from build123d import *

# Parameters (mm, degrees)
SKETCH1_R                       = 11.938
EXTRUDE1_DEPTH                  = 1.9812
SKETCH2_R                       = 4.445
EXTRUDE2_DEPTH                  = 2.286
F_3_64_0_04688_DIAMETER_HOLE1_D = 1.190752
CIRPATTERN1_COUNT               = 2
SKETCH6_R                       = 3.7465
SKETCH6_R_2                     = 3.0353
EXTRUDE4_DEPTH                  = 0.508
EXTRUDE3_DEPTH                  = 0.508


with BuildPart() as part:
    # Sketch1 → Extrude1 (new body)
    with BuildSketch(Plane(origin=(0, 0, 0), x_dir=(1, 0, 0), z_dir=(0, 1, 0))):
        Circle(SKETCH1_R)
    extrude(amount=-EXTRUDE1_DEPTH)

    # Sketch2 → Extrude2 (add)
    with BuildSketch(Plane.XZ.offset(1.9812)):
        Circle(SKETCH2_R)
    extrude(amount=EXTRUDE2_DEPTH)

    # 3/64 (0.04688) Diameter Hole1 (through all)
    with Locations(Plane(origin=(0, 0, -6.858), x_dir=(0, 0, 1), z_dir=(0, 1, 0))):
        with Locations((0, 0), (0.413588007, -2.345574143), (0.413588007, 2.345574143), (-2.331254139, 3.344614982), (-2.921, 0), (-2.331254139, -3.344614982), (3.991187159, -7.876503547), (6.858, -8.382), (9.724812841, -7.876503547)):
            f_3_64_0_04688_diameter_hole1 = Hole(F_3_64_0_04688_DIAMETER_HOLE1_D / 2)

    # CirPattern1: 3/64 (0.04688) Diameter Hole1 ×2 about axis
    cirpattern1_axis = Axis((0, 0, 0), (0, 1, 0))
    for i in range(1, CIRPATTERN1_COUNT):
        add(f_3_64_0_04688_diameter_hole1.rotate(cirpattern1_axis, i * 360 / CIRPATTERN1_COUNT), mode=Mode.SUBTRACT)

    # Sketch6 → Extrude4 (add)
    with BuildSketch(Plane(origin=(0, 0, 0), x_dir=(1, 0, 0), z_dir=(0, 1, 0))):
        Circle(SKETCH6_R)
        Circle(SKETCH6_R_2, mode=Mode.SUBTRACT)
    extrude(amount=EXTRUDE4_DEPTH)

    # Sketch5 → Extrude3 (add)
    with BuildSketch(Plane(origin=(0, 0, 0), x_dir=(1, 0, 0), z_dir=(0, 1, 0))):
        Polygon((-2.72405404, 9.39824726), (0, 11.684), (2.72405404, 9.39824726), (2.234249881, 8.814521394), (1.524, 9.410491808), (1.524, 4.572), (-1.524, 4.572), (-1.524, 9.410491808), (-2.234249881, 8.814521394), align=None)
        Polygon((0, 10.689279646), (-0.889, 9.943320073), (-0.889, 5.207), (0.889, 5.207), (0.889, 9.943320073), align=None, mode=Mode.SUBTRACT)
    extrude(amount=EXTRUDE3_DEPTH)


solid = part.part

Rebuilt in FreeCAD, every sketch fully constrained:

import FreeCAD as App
import Part
import Sketcher
Q = App.Units.Quantity


def add_polygon(sketch, points):
    """Adds a closed chain of lines whose ends are joined by coincident constraints."""
    first, n = sketch.GeometryCount, len(points)
    for a, b in zip(points, points[1:] + points[:1]):
        sketch.addGeometry(Part.LineSegment(App.Vector(*a, 0), App.Vector(*b, 0)), False)
    for i in range(n):
        sketch.addConstraint(Sketcher.Constraint("Coincident", first + i, 2, first + (i + 1) % n, 1))

doc = App.newDocument("Part")
body = doc.addObject("PartDesign::Body", "Body")

# Sketch on XZ plane
sketch1 = doc.addObject("Sketcher::SketchObject", "Sketch")
body.addObject(sketch1)
sketch1.AttachmentSupport = (doc.XZ_Plane, [""])
sketch1.MapMode = "FlatFace"
sketch1.addGeometry(Part.Circle(App.Vector(0, 0, 0), App.Vector(0, 0, 1), 12), False)
sketch1.addConstraint([
    Sketcher.Constraint("Coincident", 0, 3, -1, 1),
    Sketcher.Constraint("Diameter", 0, Q("0.94 in")),
])
pad1 = doc.addObject("PartDesign::Pad", "Pad")
body.addObject(pad1)
pad1.Profile = sketch1
pad1.Length = Q("0.078 in")

# Sketch on XZ plane
sketch2 = doc.addObject("Sketcher::SketchObject", "Sketch001")
body.addObject(sketch2)
sketch2.AttachmentSupport = (doc.XZ_Plane, [""])
sketch2.MapMode = "FlatFace"
sketch2.AttachmentOffset = App.Placement(App.Vector(0, 0, 0.078 * 25.4), App.Rotation())
sketch2.addGeometry(Part.Circle(App.Vector(0, 0, 0), App.Vector(0, 0, 1), 4.4), False)
sketch2.addConstraint([
    Sketcher.Constraint("Coincident", 0, 3, -1, 1),
    Sketcher.Constraint("Diameter", 0, Q("0.35 in")),
])
pad2 = doc.addObject("PartDesign::Pad", "Pad001")
body.addObject(pad2)
pad2.Profile = sketch2
pad2.Length = Q("0.09 in")

# Sketch on XZ plane
sketch3 = doc.addObject("Sketcher::SketchObject", "Sketch002")
body.addObject(sketch3)
sketch3.AttachmentSupport = (doc.XZ_Plane, [""])
sketch3.MapMode = "FlatFace"
sketch3.addGeometry([
    Part.Circle(App.Vector(0, -6.9, 0), App.Vector(0, 0, 1), 0.6),  # 0
    Part.Circle(App.Vector(-2.3, -6.4, 0), App.Vector(0, 0, 1), 0.6),  # 1
    Part.Circle(App.Vector(2.3, -6.4, 0), App.Vector(0, 0, 1), 0.6),  # 2
    Part.Circle(App.Vector(3.3, -9.2, 0), App.Vector(0, 0, 1), 0.6),  # 3
    Part.Circle(App.Vector(0, -9.8, 0), App.Vector(0, 0, 1), 0.6),  # 4
    Part.Circle(App.Vector(-3.3, -9.2, 0), App.Vector(0, 0, 1), 0.6),  # 5
    Part.Circle(App.Vector(-7.9, -2.9, 0), App.Vector(0, 0, 1), 0.6),  # 6
    Part.Circle(App.Vector(-8.4, 0, 0), App.Vector(0, 0, 1), 0.6),  # 7
    Part.Circle(App.Vector(-7.9, 2.9, 0), App.Vector(0, 0, 1), 0.6),  # 8
], False)
sketch3.addConstraint([
    Sketcher.Constraint("Equal", 0, 1),
    Sketcher.Constraint("Equal", 1, 2),
    Sketcher.Constraint("Equal", 2, 3),
    Sketcher.Constraint("Equal", 3, 4),
    Sketcher.Constraint("Equal", 4, 5),
    Sketcher.Constraint("Equal", 5, 6),
    Sketcher.Constraint("Equal", 6, 7),
    Sketcher.Constraint("Equal", 7, 8),
    Sketcher.Constraint("Symmetric", 1, 3, 2, 3, -2),
    Sketcher.Constraint("Symmetric", 3, 3, 5, 3, -2),
    Sketcher.Constraint("Symmetric", 6, 3, 8, 3, -1),
    Sketcher.Constraint("PointOnObject", 0, 3, -2),
    Sketcher.Constraint("PointOnObject", 4, 3, -2),
    Sketcher.Constraint("PointOnObject", 7, 3, -1),
    Sketcher.Constraint("DistanceY", 0, 3, -1, 1, Q("0.27 in")),
    Sketcher.Constraint("DistanceX", 7, 3, -1, 1, Q("0.33 in")),
    Sketcher.Constraint("DistanceY", 4, 3, -1, 1, Q("0.385 in")),
    Sketcher.Constraint("Diameter", 0, Q("1.190752 mm")),
    Sketcher.Constraint("DistanceY", 1, 3, 6, 3, Q("3.577599 mm")),
    Sketcher.Constraint("DistanceY", 1, 3, -1, 1, Q("6.444412 mm")),
    Sketcher.Constraint("DistanceX", 1, 3, 2, 3, Q("4.691148 mm")),
    Sketcher.Constraint("DistanceX", 2, 3, 3, 3, Q("0.999041 mm")),
    Sketcher.Constraint("DistanceX", 6, 3, 1, 3, Q("5.530929 mm")),
    Sketcher.Constraint("DistanceY", 5, 3, 6, 3, Q("6.322441 mm")),
])
doc.recompute()
hole = doc.addObject("PartDesign::Hole", "Hole")
body.addObject(hole)
hole.Profile = sketch3
hole.ThreadType = "None"
hole.Diameter = 1.190752
hole.DepthType = "ThroughAll"
hole.Reversed = True
doc.recompute()

polarpattern = doc.addObject("PartDesign::PolarPattern", "PolarPattern")
body.addObject(polarpattern)
polarpattern.Originals = [hole]
polarpattern.Axis = (doc.Y_Axis, [""])
polarpattern.Angle = 360
polarpattern.Occurrences = 2
body.Tip = polarpattern

# Sketch on XZ plane
sketch4 = doc.addObject("Sketcher::SketchObject", "Sketch003")
body.addObject(sketch4)
sketch4.AttachmentSupport = (doc.XZ_Plane, [""])
sketch4.MapMode = "FlatFace"
sketch4.addGeometry([
    Part.Circle(App.Vector(0, 0, 0), App.Vector(0, 0, 1), 3.7),
    Part.Circle(App.Vector(0, 0, 0), App.Vector(0, 0, 1), 3),
], False)
sketch4.addConstraint([
    Sketcher.Constraint("Coincident", 0, 3, -1, 1),
    Sketcher.Constraint("Coincident", 1, 3, -1, 1),
    Sketcher.Constraint("Diameter", 0, Q("0.295 in")),
    Sketcher.Constraint("Diameter", 1, Q("0.239 in")),
])
pad3 = doc.addObject("PartDesign::Pad", "Pad002")
body.addObject(pad3)
pad3.Profile = sketch4
pad3.Length = Q("0.02 in")
pad3.Reversed = True

# Sketch on XZ plane
sketch5 = doc.addObject("Sketcher::SketchObject", "Sketch004")
body.addObject(sketch5)
sketch5.AttachmentSupport = (doc.XZ_Plane, [""])
sketch5.MapMode = "FlatFace"
add_polygon(sketch5, [(0, -11.7), (-2.7, -9.4), (-2.2, -8.8), (-1.5, -9.4), (-1.5, -4.6), (1.5, -4.6), (1.5, -9.4), (2.2, -8.8), (2.7, -9.4)])  # lines 0-8
add_polygon(sketch5, [(0, -10.7), (0.9, -9.9), (0.9, -5.2), (-0.9, -5.2), (-0.9, -9.9)])  # lines 9-13
sketch5.addConstraint([
    Sketcher.Constraint("Vertical", 3),
    Sketcher.Constraint("Horizontal", 4),
    Sketcher.Constraint("Vertical", 5),
    Sketcher.Constraint("Vertical", 10),
    Sketcher.Constraint("Horizontal", 11),
    Sketcher.Constraint("Vertical", 12),
    Sketcher.Constraint("Symmetric", 2, 2, 5, 2, -2),
    Sketcher.Constraint("Symmetric", 1, 2, 6, 2, -2),
    Sketcher.Constraint("Symmetric", 0, 2, 7, 2, -2),
    Sketcher.Constraint("Symmetric", 9, 2, 12, 2, -2),
    Sketcher.Constraint("PointOnObject", 8, 2, -2),
    Sketcher.Constraint("PointOnObject", 13, 2, -2),
    Sketcher.Constraint("Perpendicular", 0, 1),
    Sketcher.Constraint("Perpendicular", 1, 2),
    Sketcher.Constraint("Parallel", 8, 9),
    Sketcher.Constraint("Angle", 0, Q("140 deg")),
    Sketcher.Constraint("DistanceX", 4, 1, 4, 2, Q("0.12 in")),
    Sketcher.Constraint("DistanceX", 11, 2, 11, 1, Q("0.07 in")),
    Sketcher.Constraint("Distance", 0, Q("0.14 in")),
    Sketcher.Constraint("Distance", 1, Q("0.03 in")),
    Sketcher.Constraint("DistanceY", 3, 2, -1, 1, Q("0.18 in")),
    Sketcher.Constraint("DistanceY", 8, 2, -1, 1, Q("0.46 in")),
    Sketcher.Constraint("DistanceY", 10, 2, -1, 1, Q("0.205 in")),
    Sketcher.Constraint("DistanceY", 10, 1, 10, 2, Q("4.73632 mm")),
])
pad4 = doc.addObject("PartDesign::Pad", "Pad003")
body.addObject(pad4)
pad4.Profile = sketch5
pad4.Length = Q("0.02 in")
pad4.Reversed = True

doc.recompute()
